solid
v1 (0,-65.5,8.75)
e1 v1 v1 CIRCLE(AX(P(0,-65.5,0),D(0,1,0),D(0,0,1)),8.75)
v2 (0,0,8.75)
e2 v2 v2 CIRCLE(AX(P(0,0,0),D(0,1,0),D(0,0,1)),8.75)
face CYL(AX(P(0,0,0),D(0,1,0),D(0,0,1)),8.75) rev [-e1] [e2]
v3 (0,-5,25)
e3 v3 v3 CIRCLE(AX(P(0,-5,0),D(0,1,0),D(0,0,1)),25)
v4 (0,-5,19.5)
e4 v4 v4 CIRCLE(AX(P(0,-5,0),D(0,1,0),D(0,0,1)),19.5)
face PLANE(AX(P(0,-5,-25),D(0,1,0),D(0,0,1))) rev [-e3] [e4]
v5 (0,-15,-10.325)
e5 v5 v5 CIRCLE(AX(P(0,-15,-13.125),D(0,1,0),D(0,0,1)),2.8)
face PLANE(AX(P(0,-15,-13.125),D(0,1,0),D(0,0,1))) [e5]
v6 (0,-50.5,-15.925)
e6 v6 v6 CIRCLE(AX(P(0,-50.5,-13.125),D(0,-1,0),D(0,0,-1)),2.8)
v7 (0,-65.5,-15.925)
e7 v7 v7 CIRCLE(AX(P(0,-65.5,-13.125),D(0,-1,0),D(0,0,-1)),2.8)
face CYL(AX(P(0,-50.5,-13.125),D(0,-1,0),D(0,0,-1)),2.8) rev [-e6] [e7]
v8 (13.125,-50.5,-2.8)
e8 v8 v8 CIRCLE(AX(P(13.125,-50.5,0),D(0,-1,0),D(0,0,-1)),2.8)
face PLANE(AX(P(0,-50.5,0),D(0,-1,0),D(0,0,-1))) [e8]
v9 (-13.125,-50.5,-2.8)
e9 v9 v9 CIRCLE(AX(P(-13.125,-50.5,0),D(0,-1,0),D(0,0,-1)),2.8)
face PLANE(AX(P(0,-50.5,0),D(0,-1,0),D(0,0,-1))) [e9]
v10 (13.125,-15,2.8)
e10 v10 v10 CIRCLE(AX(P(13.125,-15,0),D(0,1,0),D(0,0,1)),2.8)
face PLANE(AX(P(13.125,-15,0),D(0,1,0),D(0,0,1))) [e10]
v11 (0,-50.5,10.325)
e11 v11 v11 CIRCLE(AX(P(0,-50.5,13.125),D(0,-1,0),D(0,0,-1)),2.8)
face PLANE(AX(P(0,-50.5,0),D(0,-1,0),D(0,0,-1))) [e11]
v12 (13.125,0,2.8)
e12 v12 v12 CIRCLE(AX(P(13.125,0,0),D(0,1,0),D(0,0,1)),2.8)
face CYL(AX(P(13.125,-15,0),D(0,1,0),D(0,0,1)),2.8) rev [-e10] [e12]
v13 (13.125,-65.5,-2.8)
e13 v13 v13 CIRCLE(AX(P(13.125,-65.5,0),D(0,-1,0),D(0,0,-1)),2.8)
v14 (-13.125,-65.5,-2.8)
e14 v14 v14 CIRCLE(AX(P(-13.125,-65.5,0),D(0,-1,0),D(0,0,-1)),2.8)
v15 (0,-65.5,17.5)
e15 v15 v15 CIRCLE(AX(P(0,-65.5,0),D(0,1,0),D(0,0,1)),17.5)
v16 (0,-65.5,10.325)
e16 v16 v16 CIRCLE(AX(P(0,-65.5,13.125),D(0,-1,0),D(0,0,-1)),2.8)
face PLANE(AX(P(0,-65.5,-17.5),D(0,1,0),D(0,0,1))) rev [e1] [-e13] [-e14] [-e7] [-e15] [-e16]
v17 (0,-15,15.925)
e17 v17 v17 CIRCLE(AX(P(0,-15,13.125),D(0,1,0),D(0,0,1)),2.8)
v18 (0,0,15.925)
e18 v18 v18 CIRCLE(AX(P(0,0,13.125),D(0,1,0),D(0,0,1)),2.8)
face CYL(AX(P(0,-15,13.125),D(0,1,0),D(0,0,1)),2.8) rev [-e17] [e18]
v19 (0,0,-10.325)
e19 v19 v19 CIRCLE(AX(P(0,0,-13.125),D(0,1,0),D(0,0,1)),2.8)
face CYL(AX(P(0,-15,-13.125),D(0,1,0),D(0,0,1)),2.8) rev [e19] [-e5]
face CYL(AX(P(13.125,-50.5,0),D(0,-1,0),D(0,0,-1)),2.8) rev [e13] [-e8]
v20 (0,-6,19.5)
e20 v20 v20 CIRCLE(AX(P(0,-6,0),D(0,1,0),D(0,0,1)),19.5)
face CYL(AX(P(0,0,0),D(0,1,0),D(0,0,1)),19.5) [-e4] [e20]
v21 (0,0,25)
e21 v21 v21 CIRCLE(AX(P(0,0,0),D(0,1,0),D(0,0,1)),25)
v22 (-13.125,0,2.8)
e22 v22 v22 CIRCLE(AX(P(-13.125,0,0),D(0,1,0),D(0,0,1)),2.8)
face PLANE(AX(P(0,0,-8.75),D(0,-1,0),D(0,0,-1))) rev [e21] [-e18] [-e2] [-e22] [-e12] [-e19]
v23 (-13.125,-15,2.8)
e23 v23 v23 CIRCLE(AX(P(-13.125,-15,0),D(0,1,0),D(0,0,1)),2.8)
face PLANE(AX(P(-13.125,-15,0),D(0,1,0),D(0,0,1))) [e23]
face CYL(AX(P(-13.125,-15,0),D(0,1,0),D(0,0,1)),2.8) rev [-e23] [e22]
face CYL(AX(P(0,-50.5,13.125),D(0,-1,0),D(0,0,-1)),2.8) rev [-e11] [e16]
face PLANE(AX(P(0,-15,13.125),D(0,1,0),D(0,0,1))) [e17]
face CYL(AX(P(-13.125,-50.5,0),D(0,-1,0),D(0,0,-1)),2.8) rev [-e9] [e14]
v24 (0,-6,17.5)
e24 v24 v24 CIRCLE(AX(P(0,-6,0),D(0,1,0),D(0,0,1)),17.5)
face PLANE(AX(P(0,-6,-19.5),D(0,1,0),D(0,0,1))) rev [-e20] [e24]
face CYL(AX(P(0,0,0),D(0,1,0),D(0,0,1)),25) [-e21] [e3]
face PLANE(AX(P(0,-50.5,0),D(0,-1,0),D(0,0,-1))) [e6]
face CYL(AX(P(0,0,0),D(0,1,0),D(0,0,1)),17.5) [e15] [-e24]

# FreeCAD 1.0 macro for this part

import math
import FreeCAD as App
import Part
import Sketcher

doc = App.newDocument("Part")
params = doc.addObject("Spreadsheet::Sheet", "Params")
for row, (alias, value) in enumerate([
    ("sketch1_width", "1 mm"),
    ("sketch1_width2", "5 mm"),
    ("sketch1_height", "2 mm"),
    ("sketch1_width3", "65.5 mm"),
    ("sketch1_height2", "5.5 mm"),
    ("revolution_angle", "360 deg"),
    ("sketch2_diameter", "5.6 mm"),
    ("pocket1_length", "15 mm"),
    ("sketch3_diameter", "5.6 mm"),
    ("pocket2_length", "15 mm"),
], start=1):
    params.set(f"A{row}", alias)
    params.set(f"B{row}", "=" + value)
    params.setAlias(f"B{row}", alias)

body = doc.addObject("PartDesign::Body", "Body")

sketch1 = body.newObject("Sketcher::SketchObject", "Sketch")
sketch1.AttachmentSupport = (doc.getObject("YZ_Plane"), [""])
sketch1.MapMode = "FlatFace"
sketch1.addGeometry([
    Part.LineSegment(App.Vector(0, -25, 0), App.Vector(0, -8.8, 0)),
    Part.LineSegment(App.Vector(0, -8.8, 0), App.Vector(-65.5, -8.8, 0)),
    Part.LineSegment(App.Vector(-65.5, -8.8, 0), App.Vector(-65.5, -17.5, 0)),
    Part.LineSegment(App.Vector(-65.5, -17.5, 0), App.Vector(-6, -17.5, 0)),
    Part.LineSegment(App.Vector(-6, -17.5, 0), App.Vector(-6, -19.5, 0)),
    Part.LineSegment(App.Vector(-6, -19.5, 0), App.Vector(-5, -19.5, 0)),
    Part.LineSegment(App.Vector(-5, -19.5, 0), App.Vector(-5, -25, 0)),
    Part.LineSegment(App.Vector(-5, -25, 0), App.Vector(0, -25, 0)),
], False)
sketch1.addConstraint([
    Sketcher.Constraint("Coincident", 0, 2, 1, 1),
    Sketcher.Constraint("Coincident", 1, 2, 2, 1),
    Sketcher.Constraint("Coincident", 2, 2, 3, 1),
    Sketcher.Constraint("Coincident", 3, 2, 4, 1),
    Sketcher.Constraint("Coincident", 4, 2, 5, 1),
    Sketcher.Constraint("Coincident", 5, 2, 6, 1),
    Sketcher.Constraint("Coincident", 6, 2, 7, 1),
    Sketcher.Constraint("Coincident", 7, 2, 0, 1),
    Sketcher.Constraint("Vertical", 0),
    Sketcher.Constraint("Horizontal", 1),
    Sketcher.Constraint("Vertical", 2),
    Sketcher.Constraint("Horizontal", 3),
    Sketcher.Constraint("Vertical", 4),
    Sketcher.Constraint("Horizontal", 5),
    Sketcher.Constraint("Vertical", 6),
    Sketcher.Constraint("Horizontal", 7),
    Sketcher.Constraint("PointOnObject", 0, 2, -2),
    Sketcher.Constraint("DistanceX", 5, 1, 5, 2, 1.0),
    Sketcher.Constraint("DistanceX", 7, 1, 7, 2, 5.0),
    Sketcher.Constraint("DistanceY", 4, 2, 4, 1, 2.0),
    Sketcher.Constraint("DistanceX", 1, 2, 1, 1, 65.5),
    Sketcher.Constraint("DistanceY", 6, 2, 6, 1, 5.5),
    Sketcher.Constraint("DistanceY", 6, 2, -1, 1, 25.0),
    Sketcher.Constraint("DistanceY", 0, 1, 0, 2, 16.25),
])
sketch1.setExpression("Constraints[17]", "Params.sketch1_width")
sketch1.setExpression("Constraints[18]", "Params.sketch1_width2")
sketch1.setExpression("Constraints[19]", "Params.sketch1_height")
sketch1.setExpression("Constraints[20]", "Params.sketch1_width3")
sketch1.setExpression("Constraints[21]", "Params.sketch1_height2")
revolution = body.newObject("PartDesign::Revolution", "Revolution")
revolution.Profile = sketch1
revolution.ReferenceAxis = (sketch1, ["H_Axis"])
revolution.setExpression("Angle", "Params.revolution_angle")

sketch2 = body.newObject("Sketcher::SketchObject", "Sketch001")
sketch2.AttachmentSupport = (doc.getObject("XZ_Plane"), [""])
sketch2.MapMode = "FlatFace"
sketch2.addGeometry([
    Part.Circle(App.Vector(0, -13.1, 0), App.Vector(0, 0, 1), 2.8),
    Part.Circle(App.Vector(13.1, 0, 0), App.Vector(0, 0, 1), 2.8),
    Part.Circle(App.Vector(0, 13.1, 0), App.Vector(0, 0, 1), 2.8),
    Part.Circle(App.Vector(-13.1, 0, 0), App.Vector(0, 0, 1), 2.8),
], False)
sketch2.addConstraint([
    Sketcher.Constraint("Equal", 0, 1),
    Sketcher.Constraint("Equal", 1, 2),
    Sketcher.Constraint("Equal", 2, 3),
    Sketcher.Constraint("Symmetric", 0, 3, 2, 3, -1, 1),
    Sketcher.Constraint("Symmetric", 1, 3, 3, 3, -1, 1),
    Sketcher.Constraint("PointOnObject", 0, 3, -2),
    Sketcher.Constraint("PointOnObject", 1, 3, -1),
    Sketcher.Constraint("Diameter", 0, 5.6),
    Sketcher.Constraint("DistanceY", 0, 3, 2, 3, 26.25),
    Sketcher.Constraint("DistanceX", 3, 3, 1, 3, 26.25),
])
sketch2.setExpression("Constraints[7]", "Params.sketch2_diameter")
pocket1 = body.newObject("PartDesign::Pocket", "Pocket")
pocket1.Profile = sketch2
pocket1.setExpression("Length", "Params.pocket1_length")
pocket1.Reversed = True

sketch3 = body.newObject("Sketcher::SketchObject", "Sketch002")
sketch3.AttachmentSupport = (doc.getObject("XZ_Plane"), [""])
sketch3.MapMode = "FlatFace"
sketch3.AttachmentOffset = App.Placement(App.Vector(0, 0, 50.5), App.Rotation())
sketch3.addGeometry([
    Part.Circle(App.Vector(13.1, 0, 0), App.Vector(0, 0, 1), 2.8),
    Part.Circle(App.Vector(0, -13.1, 0), App.Vector(0, 0, 1), 2.8),
    Part.Circle(App.Vector(-13.1, 0, 0), App.Vector(0, 0, 1), 2.8),
    Part.ArcOfCircle(Part.Circle(App.Vector(0, 13.1, 0), App.Vector(0, 0, 1), 2.8), math.radians(90), math.radians(270)),
    Part.ArcOfCircle(Part.Circle(App.Vector(0, 13.1, 0), App.Vector(0, 0, 1), 2.8), math.radians(-90), math.radians(0)),
    Part.ArcOfCircle(Part.Circle(App.Vector(0, 13.1, 0), App.Vector(0, 0, 1), 2.8), math.radians(0), math.radians(90)),
], False)
sketch3.addConstraint([
    Sketcher.Constraint("Tangent", 3, 2, 4, 1),
    Sketcher.Constraint("Tangent", 4, 2, 5, 1),
    Sketcher.Constraint("Tangent", 5, 2, 3, 1),
    Sketcher.Constraint("Equal", 0, 1),
    Sketcher.Constraint("Equal", 1, 2),
    Sketcher.Constraint("Equal", 2, 3),
    Sketcher.Constraint("Symmetric", 0, 3, 2, 3, -1, 1),
    Sketcher.Constraint("Symmetric", 1, 3, 3, 3, -1, 1),
    Sketcher.Constraint("PointOnObject", 0, 3, -1),
    Sketcher.Constraint("PointOnObject", 1, 3, -2),
    Sketcher.Constraint("PointOnObject", 3, 2, -2),
    Sketcher.Constraint("PointOnObject", 5, 2, -2),
    Sketcher.Constraint("Horizontal", 5, 3, 4, 2),
    Sketcher.Constraint("Diameter", 0, 5.6),
    Sketcher.Constraint("DistanceX", 2, 3, 0, 3, 26.25),
    Sketcher.Constraint("DistanceY", 1, 3, 3, 3, 26.25),
])
sketch3.setExpression("Constraints[13]", "Params.sketch3_diameter")
pocket2 = body.newObject("PartDesign::Pocket", "Pocket001")
pocket2.Profile = sketch3
pocket2.setExpression("Length", "Params.pocket2_length")
pocket2.Reversed = True

doc.recompute()
